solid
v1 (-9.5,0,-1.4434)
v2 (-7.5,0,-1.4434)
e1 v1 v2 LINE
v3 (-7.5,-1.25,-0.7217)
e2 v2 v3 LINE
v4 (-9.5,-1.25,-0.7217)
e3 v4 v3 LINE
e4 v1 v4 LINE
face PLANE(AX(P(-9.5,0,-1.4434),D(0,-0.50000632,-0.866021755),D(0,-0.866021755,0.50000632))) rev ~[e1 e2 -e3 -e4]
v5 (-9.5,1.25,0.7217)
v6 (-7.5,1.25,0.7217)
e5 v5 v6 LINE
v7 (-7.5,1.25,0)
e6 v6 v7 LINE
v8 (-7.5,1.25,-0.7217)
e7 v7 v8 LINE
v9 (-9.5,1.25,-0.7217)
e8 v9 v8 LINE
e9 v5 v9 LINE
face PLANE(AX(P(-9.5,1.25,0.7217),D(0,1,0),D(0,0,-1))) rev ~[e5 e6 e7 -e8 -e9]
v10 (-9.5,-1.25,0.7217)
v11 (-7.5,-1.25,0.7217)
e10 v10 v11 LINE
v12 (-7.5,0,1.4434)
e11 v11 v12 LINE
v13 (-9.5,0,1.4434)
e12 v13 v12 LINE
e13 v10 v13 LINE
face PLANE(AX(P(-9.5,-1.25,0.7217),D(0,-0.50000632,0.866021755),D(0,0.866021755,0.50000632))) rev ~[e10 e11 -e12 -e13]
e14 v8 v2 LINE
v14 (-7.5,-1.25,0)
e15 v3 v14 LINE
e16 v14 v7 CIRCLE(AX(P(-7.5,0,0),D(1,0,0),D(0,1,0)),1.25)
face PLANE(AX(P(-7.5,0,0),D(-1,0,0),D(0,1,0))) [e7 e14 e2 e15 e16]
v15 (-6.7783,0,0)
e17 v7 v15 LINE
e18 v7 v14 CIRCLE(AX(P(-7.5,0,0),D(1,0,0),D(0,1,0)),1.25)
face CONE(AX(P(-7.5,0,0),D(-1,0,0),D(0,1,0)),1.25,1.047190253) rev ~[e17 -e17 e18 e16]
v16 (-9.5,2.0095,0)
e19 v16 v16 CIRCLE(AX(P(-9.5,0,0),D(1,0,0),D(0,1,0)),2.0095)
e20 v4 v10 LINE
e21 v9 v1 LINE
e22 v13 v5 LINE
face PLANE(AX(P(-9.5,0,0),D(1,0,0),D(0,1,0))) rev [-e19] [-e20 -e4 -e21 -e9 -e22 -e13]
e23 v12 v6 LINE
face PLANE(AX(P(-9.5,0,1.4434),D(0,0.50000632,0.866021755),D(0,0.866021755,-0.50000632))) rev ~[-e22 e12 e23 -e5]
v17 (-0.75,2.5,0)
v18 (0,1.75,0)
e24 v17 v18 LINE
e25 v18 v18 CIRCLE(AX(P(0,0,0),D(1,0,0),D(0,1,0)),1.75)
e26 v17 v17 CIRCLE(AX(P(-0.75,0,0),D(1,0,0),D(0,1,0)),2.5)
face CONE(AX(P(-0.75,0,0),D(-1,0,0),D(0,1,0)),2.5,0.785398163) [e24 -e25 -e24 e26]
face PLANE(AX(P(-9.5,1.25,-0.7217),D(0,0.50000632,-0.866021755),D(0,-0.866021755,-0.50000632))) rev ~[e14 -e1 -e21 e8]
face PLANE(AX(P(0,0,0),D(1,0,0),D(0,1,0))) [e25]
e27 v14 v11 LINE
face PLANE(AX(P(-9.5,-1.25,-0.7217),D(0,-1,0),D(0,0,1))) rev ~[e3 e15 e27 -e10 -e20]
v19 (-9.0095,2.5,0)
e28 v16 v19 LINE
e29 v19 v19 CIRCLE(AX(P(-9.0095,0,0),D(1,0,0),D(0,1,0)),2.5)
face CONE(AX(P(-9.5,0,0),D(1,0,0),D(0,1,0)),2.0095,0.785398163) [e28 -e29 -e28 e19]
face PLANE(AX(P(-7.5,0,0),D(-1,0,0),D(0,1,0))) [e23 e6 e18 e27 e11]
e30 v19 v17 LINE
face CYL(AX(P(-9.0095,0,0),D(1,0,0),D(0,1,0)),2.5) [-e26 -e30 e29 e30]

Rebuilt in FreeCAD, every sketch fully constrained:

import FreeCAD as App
import Part
import Sketcher

V = App.Vector
Q = App.Units.Quantity


def add_polygon(sketch, points):
    """Adds a closed chain of lines whose ends are joined by coincident constraints."""
    first, n = sketch.GeometryCount, len(points)
    for a, b in zip(points, points[1:] + points[:1]):
        sketch.addGeometry(Part.LineSegment(App.Vector(*a, 0), App.Vector(*b, 0)), False)
    for i in range(n):
        sketch.addConstraint(Sketcher.Constraint("Coincident", first + i, 2, first + (i + 1) % n, 1))

doc = App.newDocument("Part")
body = doc.addObject("PartDesign::Body", "Body")

# Sketch on XY plane
sketch1 = doc.addObject("Sketcher::SketchObject", "Sketch")
body.addObject(sketch1)
sketch1.AttachmentSupport = (doc.XY_Plane, [""])
sketch1.MapMode = "FlatFace"
add_polygon(sketch1, [(-9.5, 0), (0, 0), (0, 1.75), (-0.75, 2.5), (-9.0095, 2.5), (-9.5, 2.0095)])  # lines 0-5
sketch1.addConstraint([
    Sketcher.Constraint("Horizontal", 0),
    Sketcher.Constraint("Vertical", 1),
    Sketcher.Constraint("Horizontal", 3),
    Sketcher.Constraint("Vertical", 5),
    Sketcher.Constraint("Coincident", 0, 2, -1, 1),
    Sketcher.Constraint("Perpendicular", 2, 4),
    Sketcher.Constraint("Angle", 2, Q("135 deg")),
    Sketcher.Constraint("DistanceX", 0, 1, 0, 2, Q("9.5 mm")),
    Sketcher.Constraint("DistanceY", 1, 1, 1, 2, Q("1.75 mm")),
    Sketcher.Constraint("DistanceY", -1, 1, 2, 2, Q("2.5 mm")),
    Sketcher.Constraint("DistanceX", 3, 2, 3, 1, Q("8.2595 mm")),
])
revolution = doc.addObject("PartDesign::Revolution", "Revolution")
body.addObject(revolution)
revolution.Profile = sketch1
revolution.ReferenceAxis = (sketch1, ["H_Axis"])
revolution.Angle = 360

# Sketch on YZ plane
sketch2 = doc.addObject("Sketcher::SketchObject", "Sketch001")
body.addObject(sketch2)
sketch2.AttachmentSupport = (doc.YZ_Plane, [""])
sketch2.MapMode = "FlatFace"
sketch2.AttachmentOffset = App.Placement(V(0, 0, -9.5), App.Rotation())
add_polygon(sketch2, [(0, -1.4434), (-1.25, -0.7217), (-1.25, 0.7217), (0, 1.4434), (1.25, 0.7217), (1.25, -0.7217)])  # lines 0-5
sketch2.addConstraint([
    Sketcher.Constraint("Vertical", 1),
    Sketcher.Constraint("Vertical", 4),
    Sketcher.Constraint("Symmetric", 0, 2, 3, 2, -1, 1),
    Sketcher.Constraint("Symmetric", 2, 2, 5, 2, -1, 1),
    Sketcher.Constraint("PointOnObject", 2, 2, -2),
    Sketcher.Constraint("Parallel", 2, 5),
    Sketcher.Constraint("Horizontal", 1, 2, 3, 2),
    Sketcher.Constraint("Angle", 0, Q("149.9996 deg")),
    Sketcher.Constraint("DistanceX", 1, 2, 3, 2, Q("2.5 mm")),
    Sketcher.Constraint("DistanceY", 1, 1, 1, 2, Q("1.4434 mm")),
])
pocket1 = doc.addObject("PartDesign::Pocket", "Pocket")
body.addObject(pocket1)
pocket1.Profile = sketch2
pocket1.Length = 2
pocket1.Reversed = True

# Sketch on XY plane
sketch3 = doc.addObject("Sketcher::SketchObject", "Sketch002")
body.addObject(sketch3)
sketch3.AttachmentSupport = (doc.XY_Plane, [""])
sketch3.MapMode = "FlatFace"
add_polygon(sketch3, [(-7.5, 0), (-6.7783, 0), (-7.5, 1.25)])  # lines 0-2
sketch3.addConstraint([
    Sketcher.Constraint("Horizontal", 0),
    Sketcher.Constraint("Vertical", 2),
    Sketcher.Constraint("PointOnObject", 0, 2, -1),
    Sketcher.Constraint("Angle", 1, Q("120.0004 deg")),
    Sketcher.Constraint("DistanceY", 2, 2, 2, 1, Q("1.25 mm")),
    Sketcher.Constraint("DistanceX", 1, 2, -1, 1, Q("7.5 mm")),
])
groove = doc.addObject("PartDesign::Groove", "Groove")
body.addObject(groove)
groove.Profile = sketch3
groove.ReferenceAxis = (sketch3, ["H_Axis"])
groove.Angle = 360

doc.recompute()
